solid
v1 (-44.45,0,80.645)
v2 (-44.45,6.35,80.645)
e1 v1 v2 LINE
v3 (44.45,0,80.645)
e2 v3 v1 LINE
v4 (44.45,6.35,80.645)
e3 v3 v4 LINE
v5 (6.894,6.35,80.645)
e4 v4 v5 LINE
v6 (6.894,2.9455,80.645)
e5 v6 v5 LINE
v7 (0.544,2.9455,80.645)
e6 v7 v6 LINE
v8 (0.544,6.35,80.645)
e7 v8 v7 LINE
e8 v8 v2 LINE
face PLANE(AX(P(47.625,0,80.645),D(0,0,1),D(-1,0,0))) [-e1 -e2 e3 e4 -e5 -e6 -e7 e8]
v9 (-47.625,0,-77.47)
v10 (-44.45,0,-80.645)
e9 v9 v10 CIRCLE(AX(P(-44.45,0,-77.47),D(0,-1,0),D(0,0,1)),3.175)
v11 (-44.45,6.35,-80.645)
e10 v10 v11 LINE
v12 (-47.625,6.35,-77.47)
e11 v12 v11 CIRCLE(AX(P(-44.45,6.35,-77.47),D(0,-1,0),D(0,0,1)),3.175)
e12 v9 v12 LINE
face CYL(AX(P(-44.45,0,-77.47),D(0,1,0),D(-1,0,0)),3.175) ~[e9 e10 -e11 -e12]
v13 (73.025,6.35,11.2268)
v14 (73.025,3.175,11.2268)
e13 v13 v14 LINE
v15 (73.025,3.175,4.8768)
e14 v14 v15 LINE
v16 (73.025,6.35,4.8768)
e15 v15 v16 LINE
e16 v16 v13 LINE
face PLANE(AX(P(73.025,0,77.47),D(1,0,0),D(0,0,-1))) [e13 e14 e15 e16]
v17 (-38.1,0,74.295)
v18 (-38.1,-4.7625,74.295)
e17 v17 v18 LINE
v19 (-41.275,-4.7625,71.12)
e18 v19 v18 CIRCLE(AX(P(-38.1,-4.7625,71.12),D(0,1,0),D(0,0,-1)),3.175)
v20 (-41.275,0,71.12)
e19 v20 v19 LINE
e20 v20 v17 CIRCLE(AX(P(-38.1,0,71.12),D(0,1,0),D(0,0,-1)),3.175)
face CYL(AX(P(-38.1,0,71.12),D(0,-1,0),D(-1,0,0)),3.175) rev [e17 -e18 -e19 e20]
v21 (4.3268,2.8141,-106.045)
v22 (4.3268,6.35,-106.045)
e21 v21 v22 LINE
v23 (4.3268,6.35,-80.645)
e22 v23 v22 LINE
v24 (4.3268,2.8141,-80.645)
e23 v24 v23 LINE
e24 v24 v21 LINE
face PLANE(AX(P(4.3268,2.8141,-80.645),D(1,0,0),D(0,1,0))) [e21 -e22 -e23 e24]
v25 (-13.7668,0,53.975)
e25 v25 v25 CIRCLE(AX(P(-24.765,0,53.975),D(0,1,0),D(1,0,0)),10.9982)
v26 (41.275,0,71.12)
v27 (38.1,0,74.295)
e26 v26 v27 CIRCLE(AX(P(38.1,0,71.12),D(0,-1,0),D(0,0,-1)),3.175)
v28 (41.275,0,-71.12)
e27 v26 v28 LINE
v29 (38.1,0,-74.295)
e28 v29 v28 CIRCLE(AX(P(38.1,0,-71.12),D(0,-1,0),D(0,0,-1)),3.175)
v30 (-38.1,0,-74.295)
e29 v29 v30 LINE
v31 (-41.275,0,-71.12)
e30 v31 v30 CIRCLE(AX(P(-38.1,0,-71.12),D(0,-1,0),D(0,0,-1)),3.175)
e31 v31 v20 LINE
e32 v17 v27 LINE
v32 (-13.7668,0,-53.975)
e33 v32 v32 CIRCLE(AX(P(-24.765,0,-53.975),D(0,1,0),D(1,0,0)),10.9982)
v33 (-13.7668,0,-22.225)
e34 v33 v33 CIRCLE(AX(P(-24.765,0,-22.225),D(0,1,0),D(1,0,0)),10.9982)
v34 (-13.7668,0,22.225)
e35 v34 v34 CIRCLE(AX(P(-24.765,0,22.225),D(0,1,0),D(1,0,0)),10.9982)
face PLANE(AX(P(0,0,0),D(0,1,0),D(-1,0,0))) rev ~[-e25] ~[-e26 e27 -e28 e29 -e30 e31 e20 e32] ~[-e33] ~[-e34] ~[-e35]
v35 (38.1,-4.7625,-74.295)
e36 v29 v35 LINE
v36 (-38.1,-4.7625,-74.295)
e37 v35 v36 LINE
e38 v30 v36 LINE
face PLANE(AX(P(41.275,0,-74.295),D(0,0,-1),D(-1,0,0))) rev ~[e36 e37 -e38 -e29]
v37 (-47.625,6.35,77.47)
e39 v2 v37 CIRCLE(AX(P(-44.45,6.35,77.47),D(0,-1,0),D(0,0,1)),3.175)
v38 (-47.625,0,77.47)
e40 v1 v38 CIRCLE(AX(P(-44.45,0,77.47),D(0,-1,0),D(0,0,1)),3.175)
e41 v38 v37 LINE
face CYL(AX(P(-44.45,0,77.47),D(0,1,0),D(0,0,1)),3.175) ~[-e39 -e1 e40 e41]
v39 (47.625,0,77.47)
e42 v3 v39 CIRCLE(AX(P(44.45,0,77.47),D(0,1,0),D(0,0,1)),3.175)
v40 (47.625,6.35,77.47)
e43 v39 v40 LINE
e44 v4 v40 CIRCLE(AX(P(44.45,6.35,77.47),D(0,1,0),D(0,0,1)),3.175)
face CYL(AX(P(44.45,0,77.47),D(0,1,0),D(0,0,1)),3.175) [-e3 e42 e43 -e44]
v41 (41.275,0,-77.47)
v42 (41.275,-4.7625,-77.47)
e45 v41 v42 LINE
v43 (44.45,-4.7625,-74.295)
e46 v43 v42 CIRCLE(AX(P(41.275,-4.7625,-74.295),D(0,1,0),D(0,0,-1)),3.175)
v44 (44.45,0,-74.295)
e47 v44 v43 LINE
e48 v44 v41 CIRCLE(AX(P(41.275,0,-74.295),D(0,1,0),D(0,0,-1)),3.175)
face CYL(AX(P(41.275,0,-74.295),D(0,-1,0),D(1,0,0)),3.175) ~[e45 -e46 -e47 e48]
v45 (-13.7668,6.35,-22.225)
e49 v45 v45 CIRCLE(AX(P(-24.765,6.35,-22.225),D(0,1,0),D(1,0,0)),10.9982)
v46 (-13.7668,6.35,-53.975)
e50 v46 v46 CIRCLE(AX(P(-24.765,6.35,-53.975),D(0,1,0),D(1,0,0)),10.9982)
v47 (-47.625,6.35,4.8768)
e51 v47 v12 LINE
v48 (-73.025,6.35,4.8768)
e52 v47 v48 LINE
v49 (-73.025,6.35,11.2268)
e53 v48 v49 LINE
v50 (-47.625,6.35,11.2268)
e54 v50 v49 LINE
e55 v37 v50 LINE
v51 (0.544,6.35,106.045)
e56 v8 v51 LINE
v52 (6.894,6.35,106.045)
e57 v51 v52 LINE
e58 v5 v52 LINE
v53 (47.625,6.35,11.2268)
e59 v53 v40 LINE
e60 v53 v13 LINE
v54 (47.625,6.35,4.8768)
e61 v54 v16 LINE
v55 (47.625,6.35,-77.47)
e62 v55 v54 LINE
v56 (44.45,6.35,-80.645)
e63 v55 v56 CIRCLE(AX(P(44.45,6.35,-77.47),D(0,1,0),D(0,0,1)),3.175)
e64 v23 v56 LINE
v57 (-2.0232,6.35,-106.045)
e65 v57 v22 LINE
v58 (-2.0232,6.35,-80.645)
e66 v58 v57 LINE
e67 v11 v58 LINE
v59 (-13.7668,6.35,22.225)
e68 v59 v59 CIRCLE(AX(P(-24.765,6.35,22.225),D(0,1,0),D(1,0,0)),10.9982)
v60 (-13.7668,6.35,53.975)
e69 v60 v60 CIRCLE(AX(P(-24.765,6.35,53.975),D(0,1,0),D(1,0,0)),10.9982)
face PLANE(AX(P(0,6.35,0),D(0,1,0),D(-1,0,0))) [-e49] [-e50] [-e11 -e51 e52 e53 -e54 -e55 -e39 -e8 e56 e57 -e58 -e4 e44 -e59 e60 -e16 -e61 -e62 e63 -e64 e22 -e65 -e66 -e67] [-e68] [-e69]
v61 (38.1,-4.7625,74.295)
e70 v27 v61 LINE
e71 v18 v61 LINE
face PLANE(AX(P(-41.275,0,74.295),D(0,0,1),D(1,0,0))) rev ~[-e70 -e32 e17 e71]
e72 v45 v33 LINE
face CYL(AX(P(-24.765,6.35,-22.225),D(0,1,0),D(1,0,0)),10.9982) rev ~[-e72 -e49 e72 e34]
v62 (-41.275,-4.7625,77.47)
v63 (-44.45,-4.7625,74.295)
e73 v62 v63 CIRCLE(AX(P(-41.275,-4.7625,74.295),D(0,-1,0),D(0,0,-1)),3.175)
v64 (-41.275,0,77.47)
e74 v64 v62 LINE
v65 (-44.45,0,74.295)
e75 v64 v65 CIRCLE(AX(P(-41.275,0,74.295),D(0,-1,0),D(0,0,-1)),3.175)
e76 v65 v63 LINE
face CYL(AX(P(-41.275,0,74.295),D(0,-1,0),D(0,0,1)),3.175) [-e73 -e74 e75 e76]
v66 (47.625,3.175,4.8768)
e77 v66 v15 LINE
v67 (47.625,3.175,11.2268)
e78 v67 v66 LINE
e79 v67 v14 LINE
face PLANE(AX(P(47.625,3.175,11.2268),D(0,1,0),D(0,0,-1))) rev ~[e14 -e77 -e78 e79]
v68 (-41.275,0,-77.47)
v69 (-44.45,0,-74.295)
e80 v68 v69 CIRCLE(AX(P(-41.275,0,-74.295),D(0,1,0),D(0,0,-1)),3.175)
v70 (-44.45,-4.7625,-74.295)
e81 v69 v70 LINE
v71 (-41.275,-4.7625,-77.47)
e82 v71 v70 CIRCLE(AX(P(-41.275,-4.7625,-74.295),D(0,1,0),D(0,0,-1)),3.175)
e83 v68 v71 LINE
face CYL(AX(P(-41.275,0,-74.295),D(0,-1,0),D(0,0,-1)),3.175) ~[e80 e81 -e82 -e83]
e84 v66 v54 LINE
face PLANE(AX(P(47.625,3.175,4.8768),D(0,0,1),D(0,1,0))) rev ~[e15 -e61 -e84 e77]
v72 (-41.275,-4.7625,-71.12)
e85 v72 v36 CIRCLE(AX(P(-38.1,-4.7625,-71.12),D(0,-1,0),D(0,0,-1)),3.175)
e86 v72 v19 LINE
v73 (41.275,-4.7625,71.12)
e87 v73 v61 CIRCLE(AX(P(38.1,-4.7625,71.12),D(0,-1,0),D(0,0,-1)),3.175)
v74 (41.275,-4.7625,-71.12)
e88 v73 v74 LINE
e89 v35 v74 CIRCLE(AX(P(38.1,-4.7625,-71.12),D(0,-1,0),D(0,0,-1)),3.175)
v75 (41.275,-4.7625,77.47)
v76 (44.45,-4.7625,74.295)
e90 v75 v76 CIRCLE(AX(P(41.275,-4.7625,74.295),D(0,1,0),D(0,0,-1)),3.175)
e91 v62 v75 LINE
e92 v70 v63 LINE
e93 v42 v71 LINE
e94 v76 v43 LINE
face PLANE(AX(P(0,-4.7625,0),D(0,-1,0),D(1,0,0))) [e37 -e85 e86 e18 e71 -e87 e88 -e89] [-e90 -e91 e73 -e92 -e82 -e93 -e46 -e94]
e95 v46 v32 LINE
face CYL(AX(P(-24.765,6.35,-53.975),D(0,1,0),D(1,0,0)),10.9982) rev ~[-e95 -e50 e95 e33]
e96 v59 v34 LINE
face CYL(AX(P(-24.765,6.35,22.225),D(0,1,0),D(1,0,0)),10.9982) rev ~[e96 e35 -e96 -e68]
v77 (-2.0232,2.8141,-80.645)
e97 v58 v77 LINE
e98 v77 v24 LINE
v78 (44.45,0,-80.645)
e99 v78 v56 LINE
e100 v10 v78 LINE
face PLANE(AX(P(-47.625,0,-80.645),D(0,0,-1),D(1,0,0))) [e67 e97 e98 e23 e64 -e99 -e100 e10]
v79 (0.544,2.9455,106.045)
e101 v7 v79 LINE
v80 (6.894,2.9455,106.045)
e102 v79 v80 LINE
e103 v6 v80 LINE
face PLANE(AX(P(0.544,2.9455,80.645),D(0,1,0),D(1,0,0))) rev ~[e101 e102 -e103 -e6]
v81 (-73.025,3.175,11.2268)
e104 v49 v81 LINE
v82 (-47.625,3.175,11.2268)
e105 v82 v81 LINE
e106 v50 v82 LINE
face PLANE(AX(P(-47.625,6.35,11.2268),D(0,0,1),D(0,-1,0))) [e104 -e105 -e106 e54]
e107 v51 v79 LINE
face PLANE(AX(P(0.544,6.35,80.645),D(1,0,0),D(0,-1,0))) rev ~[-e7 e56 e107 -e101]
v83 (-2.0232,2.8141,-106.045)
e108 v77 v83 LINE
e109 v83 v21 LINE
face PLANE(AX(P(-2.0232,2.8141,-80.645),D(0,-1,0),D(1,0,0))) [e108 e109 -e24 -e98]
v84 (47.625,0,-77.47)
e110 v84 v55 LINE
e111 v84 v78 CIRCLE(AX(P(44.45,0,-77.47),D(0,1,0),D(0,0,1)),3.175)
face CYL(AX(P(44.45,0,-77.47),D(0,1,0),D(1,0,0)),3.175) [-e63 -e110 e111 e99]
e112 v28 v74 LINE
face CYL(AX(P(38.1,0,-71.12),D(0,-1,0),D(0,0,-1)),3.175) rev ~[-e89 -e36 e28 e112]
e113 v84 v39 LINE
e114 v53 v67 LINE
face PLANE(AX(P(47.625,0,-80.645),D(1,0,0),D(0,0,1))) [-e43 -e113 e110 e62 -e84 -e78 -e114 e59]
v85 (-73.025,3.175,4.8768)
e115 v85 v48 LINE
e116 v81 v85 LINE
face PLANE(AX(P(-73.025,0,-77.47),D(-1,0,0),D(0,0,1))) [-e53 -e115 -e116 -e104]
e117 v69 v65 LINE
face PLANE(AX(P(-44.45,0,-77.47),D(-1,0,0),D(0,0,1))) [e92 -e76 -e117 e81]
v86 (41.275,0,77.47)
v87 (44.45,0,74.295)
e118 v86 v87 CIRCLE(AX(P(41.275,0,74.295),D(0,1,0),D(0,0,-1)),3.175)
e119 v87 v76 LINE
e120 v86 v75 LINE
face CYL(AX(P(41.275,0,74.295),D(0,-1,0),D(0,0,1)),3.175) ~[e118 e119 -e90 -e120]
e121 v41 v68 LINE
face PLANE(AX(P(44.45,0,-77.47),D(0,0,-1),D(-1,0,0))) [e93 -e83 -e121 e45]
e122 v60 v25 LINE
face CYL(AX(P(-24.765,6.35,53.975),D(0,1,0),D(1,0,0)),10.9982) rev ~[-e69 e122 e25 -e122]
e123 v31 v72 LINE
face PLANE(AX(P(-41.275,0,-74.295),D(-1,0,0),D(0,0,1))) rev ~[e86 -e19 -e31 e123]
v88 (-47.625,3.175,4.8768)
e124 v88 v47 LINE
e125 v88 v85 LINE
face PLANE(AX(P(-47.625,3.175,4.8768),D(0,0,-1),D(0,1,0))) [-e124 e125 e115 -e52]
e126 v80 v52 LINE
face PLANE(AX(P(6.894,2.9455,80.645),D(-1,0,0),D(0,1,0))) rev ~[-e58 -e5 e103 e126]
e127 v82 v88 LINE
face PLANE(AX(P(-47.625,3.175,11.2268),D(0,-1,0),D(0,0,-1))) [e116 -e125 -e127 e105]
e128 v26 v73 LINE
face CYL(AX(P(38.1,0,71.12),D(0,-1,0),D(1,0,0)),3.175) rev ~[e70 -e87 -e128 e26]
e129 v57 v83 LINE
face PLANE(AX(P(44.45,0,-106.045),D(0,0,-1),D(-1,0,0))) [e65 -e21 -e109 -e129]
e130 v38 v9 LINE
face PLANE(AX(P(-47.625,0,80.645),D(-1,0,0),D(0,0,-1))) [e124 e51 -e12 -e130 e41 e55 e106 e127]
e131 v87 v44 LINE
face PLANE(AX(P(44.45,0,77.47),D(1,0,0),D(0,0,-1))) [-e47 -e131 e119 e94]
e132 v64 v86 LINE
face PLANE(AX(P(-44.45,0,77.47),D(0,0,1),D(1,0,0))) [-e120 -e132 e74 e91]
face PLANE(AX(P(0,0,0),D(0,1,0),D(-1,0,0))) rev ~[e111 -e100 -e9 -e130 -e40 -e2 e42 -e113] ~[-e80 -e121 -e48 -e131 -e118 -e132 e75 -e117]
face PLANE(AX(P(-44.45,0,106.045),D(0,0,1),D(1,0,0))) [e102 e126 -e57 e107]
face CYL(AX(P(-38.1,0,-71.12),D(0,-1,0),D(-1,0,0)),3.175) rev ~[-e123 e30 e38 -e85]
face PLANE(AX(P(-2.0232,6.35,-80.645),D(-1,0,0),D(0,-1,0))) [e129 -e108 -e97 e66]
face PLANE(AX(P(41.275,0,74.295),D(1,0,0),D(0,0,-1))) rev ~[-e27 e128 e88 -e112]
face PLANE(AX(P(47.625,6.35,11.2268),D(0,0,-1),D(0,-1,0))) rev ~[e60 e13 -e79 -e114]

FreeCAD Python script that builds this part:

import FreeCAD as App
import Part
import Sketcher
from FreeCAD import Vector
Q = App.Units.Quantity


def edges_at(feature, points):
    """Names of the edges that pass closest to the given points."""
    edges = feature.Shape.Edges
    near = lambda p: min(range(len(edges)), key=lambda i: edges[i].distToShape(Part.Vertex(*p))[0])
    return sorted({f"Edge{near(p) + 1}" for p in points})

doc = App.newDocument("Part")
body = doc.addObject("PartDesign::Body", "Body")

# Sketch on XZ plane
sketch1 = body.newObject("Sketcher::SketchObject", "Sketch")
sketch1.AttachmentSupport = (doc.getObject("XZ_Plane"), [""])
sketch1.MapMode = "FlatFace"
sketch1.addGeometry([
    Part.LineSegment(Vector(-48, 81, 0), Vector(48, 81, 0)),
    Part.LineSegment(Vector(48, 81, 0), Vector(48, -81, 0)),
    Part.LineSegment(Vector(48, -81, 0), Vector(-48, -81, 0)),
    Part.LineSegment(Vector(-48, -81, 0), Vector(-48, 81, 0)),
], False)
sketch1.addConstraint([
    Sketcher.Constraint("Coincident", 0, 2, 1, 1),
    Sketcher.Constraint("Coincident", 1, 2, 2, 1),
    Sketcher.Constraint("Coincident", 2, 2, 3, 1),
    Sketcher.Constraint("Coincident", 3, 2, 0, 1),
    Sketcher.Constraint("Horizontal", 0),
    Sketcher.Constraint("Vertical", 1),
    Sketcher.Constraint("Horizontal", 2),
    Sketcher.Constraint("Vertical", 3),
    Sketcher.Constraint("Symmetric", 0, 2, 2, 2, -1, 1),
    Sketcher.Constraint("DistanceX", 0, 1, 0, 2, Q("3.75 in")),
    Sketcher.Constraint("DistanceY", 1, 2, 1, 1, Q("6.35 in")),
])
pad1 = body.newObject("PartDesign::Pad", "Pad")
pad1.Profile = sketch1
pad1.Length = Q("0.25 in")
pad1.Reversed = True

# Sketch on XZ plane
sketch2 = body.newObject("Sketcher::SketchObject", "Sketch001")
sketch2.AttachmentSupport = (doc.getObject("XZ_Plane"), [""])
sketch2.MapMode = "FlatFace"
sketch2.addGeometry([
    Part.LineSegment(Vector(44, 77, 0), Vector(-44, 77, 0)),  # 0
    Part.LineSegment(Vector(-44, 77, 0), Vector(-44, -77, 0)),  # 1
    Part.LineSegment(Vector(-44, -77, 0), Vector(44, -77, 0)),  # 2
    Part.LineSegment(Vector(44, -77, 0), Vector(44, 77, 0)),  # 3
    Part.LineSegment(Vector(-41, -74, 0), Vector(-41, 74, 0)),  # 4
    Part.LineSegment(Vector(-41, 74, 0), Vector(41, 74, 0)),  # 5
    Part.LineSegment(Vector(41, 74, 0), Vector(41, -74, 0)),  # 6
    Part.LineSegment(Vector(41, -74, 0), Vector(-41, -74, 0)),  # 7
], False)
sketch2.addConstraint([
    Sketcher.Constraint("Coincident", 0, 2, 1, 1),
    Sketcher.Constraint("Coincident", 1, 2, 2, 1),
    Sketcher.Constraint("Coincident", 2, 2, 3, 1),
    Sketcher.Constraint("Coincident", 3, 2, 0, 1),
    Sketcher.Constraint("Coincident", 4, 2, 5, 1),
    Sketcher.Constraint("Coincident", 5, 2, 6, 1),
    Sketcher.Constraint("Coincident", 6, 2, 7, 1),
    Sketcher.Constraint("Coincident", 7, 2, 4, 1),
    Sketcher.Constraint("Horizontal", 0),
    Sketcher.Constraint("Vertical", 1),
    Sketcher.Constraint("Horizontal", 2),
    Sketcher.Constraint("Vertical", 3),
    Sketcher.Constraint("Vertical", 4),
    Sketcher.Constraint("Horizontal", 5),
    Sketcher.Constraint("Vertical", 6),
    Sketcher.Constraint("Horizontal", 7),
    Sketcher.Constraint("Symmetric", 0, 2, 2, 2, -1, 1),
    Sketcher.Constraint("Symmetric", 4, 2, 6, 2, -1, 1),
    Sketcher.Constraint("DistanceX", 0, 2, 0, 1, Q("3.5 in")),
    Sketcher.Constraint("DistanceY", 1, 2, 1, 1, Q("6.1 in")),
    Sketcher.Constraint("DistanceX", 5, 1, 5, 2, Q("3.25 in")),
    Sketcher.Constraint("DistanceY", 4, 1, 4, 2, Q("5.85 in")),
])
pad2 = body.newObject("PartDesign::Pad", "Pad001")
pad2.Profile = sketch2
pad2.Length = Q("0.1875 in")

# Sketch on XZ plane
sketch3 = body.newObject("Sketcher::SketchObject", "Sketch002")
sketch3.AttachmentSupport = (doc.getObject("XZ_Plane"), [""])
sketch3.MapMode = "FlatFace"
sketch3.AttachmentOffset = App.Placement(Vector(0, 0, -0.25 * 25.4), App.Rotation())
sketch3.addGeometry([
    Part.Circle(Vector(-25, 54, 0), Vector(0, 0, 1), 11),
    Part.Circle(Vector(-25, -54, 0), Vector(0, 0, 1), 11),
    Part.Circle(Vector(-25, 22, 0), Vector(0, 0, 1), 11),
    Part.Circle(Vector(-25, -22, 0), Vector(0, 0, 1), 11),
], False)
sketch3.addConstraint([
    Sketcher.Constraint("Equal", 0, 1),
    Sketcher.Constraint("Equal", 1, 2),
    Sketcher.Constraint("Equal", 2, 3),
    Sketcher.Constraint("Symmetric", 0, 3, 1, 3, -1),
    Sketcher.Constraint("Symmetric", 2, 3, 3, 3, -1),
    Sketcher.Constraint("Vertical", 1, 3, 2, 3),
    Sketcher.Constraint("Diameter", 0, Q("0.866 in")),
    Sketcher.Constraint("DistanceY", 2, 3, 0, 3, Q("1.25 in")),
    Sketcher.Constraint("DistanceY", 3, 3, 2, 3, Q("1.75 in")),
    Sketcher.Constraint("DistanceX", 0, 3, -1, 1, Q("0.975 in")),
])
pocket1 = body.newObject("PartDesign::Pocket", "Pocket")
pocket1.Profile = sketch3
pocket1.Type = "UpToFirst"
pocket1.Reversed = True
doc.recompute()

fillet = body.newObject("PartDesign::Fillet", "Fillet")
fillet.Base = (pocket1, edges_at(pocket1, [
    (47.625, 3.175, 80.645),
    (-47.625, 3.175, 80.645),
    (47.625, 3.175, -80.645),
    (-47.625, 3.175, -80.645),
    (44.45, -2.381, -77.47),
    (44.45, -2.381, 77.47),
    (-44.45, -2.381, -77.47),
    (-41.275, -2.381, 74.295),
    (-44.45, -2.381, 77.47),
    (41.275, -2.381, 74.295),
    (41.275, -2.381, -74.295),
    (-41.275, -2.381, -74.295),
]))
fillet.Radius = Q("0.125 in")

# Sketch on XY plane
sketch4 = body.newObject("Sketcher::SketchObject", "Sketch003")
sketch4.AttachmentSupport = (doc.getObject("XY_Plane"), [""])
sketch4.MapMode = "FlatFace"
sketch4.AttachmentOffset = App.Placement(Vector(0, 0, 3.175 * 25.4), App.Rotation())
sketch4.addGeometry([
    Part.LineSegment(Vector(6.9, 6.3, 0), Vector(0.5, 6.3, 0)),
    Part.LineSegment(Vector(0.5, 6.3, 0), Vector(0.5, 2.9, 0)),
    Part.LineSegment(Vector(0.5, 2.9, 0), Vector(6.9, 2.9, 0)),
    Part.LineSegment(Vector(6.9, 2.9, 0), Vector(6.9, 6.3, 0)),
], False)
sketch4.addConstraint([
    Sketcher.Constraint("Coincident", 0, 2, 1, 1),
    Sketcher.Constraint("Coincident", 1, 2, 2, 1),
    Sketcher.Constraint("Coincident", 2, 2, 3, 1),
    Sketcher.Constraint("Coincident", 3, 2, 0, 1),
    Sketcher.Constraint("Horizontal", 0),
    Sketcher.Constraint("Vertical", 1),
    Sketcher.Constraint("Horizontal", 2),
    Sketcher.Constraint("Vertical", 3),
    Sketcher.Constraint("DistanceX", 0, 2, 0, 1, Q("0.25 in")),
    Sketcher.Constraint("DistanceY", -1, 1, 0, 2, Q("0.25 in")),
    Sketcher.Constraint("DistanceY", 1, 2, 1, 1, Q("3.4045 mm")),
    Sketcher.Constraint("DistanceX", -1, 1, 0, 2, Q("0.544 mm")),
])
pad3 = body.newObject("PartDesign::Pad", "Pad002")
pad3.Profile = sketch4
pad3.Length = Q("1 in")

# Sketch on XY plane
sketch5 = body.newObject("Sketcher::SketchObject", "Sketch004")
sketch5.AttachmentSupport = (doc.getObject("XY_Plane"), [""])
sketch5.MapMode = "FlatFace"
sketch5.AttachmentOffset = App.Placement(Vector(0, 0, -3.175 * 25.4), App.Rotation())
sketch5.addGeometry([
    Part.LineSegment(Vector(-2, 2.8, 0), Vector(-2, 6.3, 0)),
    Part.LineSegment(Vector(-2, 6.3, 0), Vector(4.3, 6.3, 0)),
    Part.LineSegment(Vector(4.3, 6.3, 0), Vector(4.3, 2.8, 0)),
    Part.LineSegment(Vector(4.3, 2.8, 0), Vector(-2, 2.8, 0)),
], False)
sketch5.addConstraint([
    Sketcher.Constraint("Coincident", 0, 2, 1, 1),
    Sketcher.Constraint("Coincident", 1, 2, 2, 1),
    Sketcher.Constraint("Coincident", 2, 2, 3, 1),
    Sketcher.Constraint("Coincident", 3, 2, 0, 1),
    Sketcher.Constraint("Vertical", 0),
    Sketcher.Constraint("Horizontal", 1),
    Sketcher.Constraint("Vertical", 2),
    Sketcher.Constraint("Horizontal", 3),
    Sketcher.Constraint("DistanceX", 1, 1, 1, 2, Q("0.25 in")),
    Sketcher.Constraint("DistanceY", -1, 1, 0, 2, Q("0.25 in")),
    Sketcher.Constraint("DistanceY", 0, 1, 0, 2, Q("0.1392 in")),
    Sketcher.Constraint("DistanceX", 0, 2, -1, 1, Q("2.0232 mm")),
])
pad4 = body.newObject("PartDesign::Pad", "Pad003")
pad4.Profile = sketch5
pad4.Length = Q("1 in")
pad4.Reversed = True

# Sketch on YZ plane
sketch6 = body.newObject("Sketcher::SketchObject", "Sketch005")
sketch6.AttachmentSupport = (doc.getObject("YZ_Plane"), [""])
sketch6.MapMode = "FlatFace"
sketch6.AttachmentOffset = App.Placement(Vector(0, 0, -1.875 * 25.4), App.Rotation())
sketch6.addGeometry([
    Part.LineSegment(Vector(6.3, 11.2, 0), Vector(6.3, 4.9, 0)),
    Part.LineSegment(Vector(6.3, 4.9, 0), Vector(3.2, 4.9, 0)),
    Part.LineSegment(Vector(3.2, 4.9, 0), Vector(3.2, 11.2, 0)),
    Part.LineSegment(Vector(3.2, 11.2, 0), Vector(6.3, 11.2, 0)),
], False)
sketch6.addConstraint([
    Sketcher.Constraint("Coincident", 0, 2, 1, 1),
    Sketcher.Constraint("Coincident", 1, 2, 2, 1),
    Sketcher.Constraint("Coincident", 2, 2, 3, 1),
    Sketcher.Constraint("Coincident", 3, 2, 0, 1),
    Sketcher.Constraint("Vertical", 0),
    Sketcher.Constraint("Horizontal", 1),
    Sketcher.Constraint("Vertical", 2),
    Sketcher.Constraint("Horizontal", 3),
    Sketcher.Constraint("DistanceY", 0, 2, 0, 1, Q("0.25 in")),
    Sketcher.Constraint("DistanceX", -1, 1, 0, 2, Q("0.25 in")),
    Sketcher.Constraint("DistanceX", 1, 2, 1, 1, Q("0.125 in")),
    Sketcher.Constraint("DistanceY", -1, 1, 0, 2, Q("0.192 in")),
])
pad5 = body.newObject("PartDesign::Pad", "Pad004")
pad5.Profile = sketch6
pad5.Length = Q("1 in")
pad5.Reversed = True

# Sketch on YZ plane
sketch7 = body.newObject("Sketcher::SketchObject", "Sketch006")
sketch7.AttachmentSupport = (doc.getObject("YZ_Plane"), [""])
sketch7.MapMode = "FlatFace"
sketch7.AttachmentOffset = App.Placement(Vector(0, 0, 1.875 * 25.4), App.Rotation())
sketch7.addGeometry([
    Part.LineSegment(Vector(3.2, 4.9, 0), Vector(6.3, 4.9, 0)),
    Part.LineSegment(Vector(6.3, 4.9, 0), Vector(6.3, 11.2, 0)),
    Part.LineSegment(Vector(6.3, 11.2, 0), Vector(3.2, 11.2, 0)),
    Part.LineSegment(Vector(3.2, 11.2, 0), Vector(3.2, 4.9, 0)),
], False)
sketch7.addConstraint([
    Sketcher.Constraint("Coincident", 0, 2, 1, 1),
    Sketcher.Constraint("Coincident", 1, 2, 2, 1),
    Sketcher.Constraint("Coincident", 2, 2, 3, 1),
    Sketcher.Constraint("Coincident", 3, 2, 0, 1),
    Sketcher.Constraint("Horizontal", 0),
    Sketcher.Constraint("Vertical", 1),
    Sketcher.Constraint("Horizontal", 2),
    Sketcher.Constraint("Vertical", 3),
    Sketcher.Constraint("DistanceY", 1, 1, 1, 2, Q("0.25 in")),
    Sketcher.Constraint("DistanceX", -1, 1, 0, 2, Q("0.25 in")),
    Sketcher.Constraint("DistanceX", 0, 1, 0, 2, Q("0.125 in")),
    Sketcher.Constraint("DistanceY", -1, 1, 0, 2, Q("0.192 in")),
])
pad6 = body.newObject("PartDesign::Pad", "Pad005")
pad6.Profile = sketch7
pad6.Length = Q("1 in")

doc.recompute()
